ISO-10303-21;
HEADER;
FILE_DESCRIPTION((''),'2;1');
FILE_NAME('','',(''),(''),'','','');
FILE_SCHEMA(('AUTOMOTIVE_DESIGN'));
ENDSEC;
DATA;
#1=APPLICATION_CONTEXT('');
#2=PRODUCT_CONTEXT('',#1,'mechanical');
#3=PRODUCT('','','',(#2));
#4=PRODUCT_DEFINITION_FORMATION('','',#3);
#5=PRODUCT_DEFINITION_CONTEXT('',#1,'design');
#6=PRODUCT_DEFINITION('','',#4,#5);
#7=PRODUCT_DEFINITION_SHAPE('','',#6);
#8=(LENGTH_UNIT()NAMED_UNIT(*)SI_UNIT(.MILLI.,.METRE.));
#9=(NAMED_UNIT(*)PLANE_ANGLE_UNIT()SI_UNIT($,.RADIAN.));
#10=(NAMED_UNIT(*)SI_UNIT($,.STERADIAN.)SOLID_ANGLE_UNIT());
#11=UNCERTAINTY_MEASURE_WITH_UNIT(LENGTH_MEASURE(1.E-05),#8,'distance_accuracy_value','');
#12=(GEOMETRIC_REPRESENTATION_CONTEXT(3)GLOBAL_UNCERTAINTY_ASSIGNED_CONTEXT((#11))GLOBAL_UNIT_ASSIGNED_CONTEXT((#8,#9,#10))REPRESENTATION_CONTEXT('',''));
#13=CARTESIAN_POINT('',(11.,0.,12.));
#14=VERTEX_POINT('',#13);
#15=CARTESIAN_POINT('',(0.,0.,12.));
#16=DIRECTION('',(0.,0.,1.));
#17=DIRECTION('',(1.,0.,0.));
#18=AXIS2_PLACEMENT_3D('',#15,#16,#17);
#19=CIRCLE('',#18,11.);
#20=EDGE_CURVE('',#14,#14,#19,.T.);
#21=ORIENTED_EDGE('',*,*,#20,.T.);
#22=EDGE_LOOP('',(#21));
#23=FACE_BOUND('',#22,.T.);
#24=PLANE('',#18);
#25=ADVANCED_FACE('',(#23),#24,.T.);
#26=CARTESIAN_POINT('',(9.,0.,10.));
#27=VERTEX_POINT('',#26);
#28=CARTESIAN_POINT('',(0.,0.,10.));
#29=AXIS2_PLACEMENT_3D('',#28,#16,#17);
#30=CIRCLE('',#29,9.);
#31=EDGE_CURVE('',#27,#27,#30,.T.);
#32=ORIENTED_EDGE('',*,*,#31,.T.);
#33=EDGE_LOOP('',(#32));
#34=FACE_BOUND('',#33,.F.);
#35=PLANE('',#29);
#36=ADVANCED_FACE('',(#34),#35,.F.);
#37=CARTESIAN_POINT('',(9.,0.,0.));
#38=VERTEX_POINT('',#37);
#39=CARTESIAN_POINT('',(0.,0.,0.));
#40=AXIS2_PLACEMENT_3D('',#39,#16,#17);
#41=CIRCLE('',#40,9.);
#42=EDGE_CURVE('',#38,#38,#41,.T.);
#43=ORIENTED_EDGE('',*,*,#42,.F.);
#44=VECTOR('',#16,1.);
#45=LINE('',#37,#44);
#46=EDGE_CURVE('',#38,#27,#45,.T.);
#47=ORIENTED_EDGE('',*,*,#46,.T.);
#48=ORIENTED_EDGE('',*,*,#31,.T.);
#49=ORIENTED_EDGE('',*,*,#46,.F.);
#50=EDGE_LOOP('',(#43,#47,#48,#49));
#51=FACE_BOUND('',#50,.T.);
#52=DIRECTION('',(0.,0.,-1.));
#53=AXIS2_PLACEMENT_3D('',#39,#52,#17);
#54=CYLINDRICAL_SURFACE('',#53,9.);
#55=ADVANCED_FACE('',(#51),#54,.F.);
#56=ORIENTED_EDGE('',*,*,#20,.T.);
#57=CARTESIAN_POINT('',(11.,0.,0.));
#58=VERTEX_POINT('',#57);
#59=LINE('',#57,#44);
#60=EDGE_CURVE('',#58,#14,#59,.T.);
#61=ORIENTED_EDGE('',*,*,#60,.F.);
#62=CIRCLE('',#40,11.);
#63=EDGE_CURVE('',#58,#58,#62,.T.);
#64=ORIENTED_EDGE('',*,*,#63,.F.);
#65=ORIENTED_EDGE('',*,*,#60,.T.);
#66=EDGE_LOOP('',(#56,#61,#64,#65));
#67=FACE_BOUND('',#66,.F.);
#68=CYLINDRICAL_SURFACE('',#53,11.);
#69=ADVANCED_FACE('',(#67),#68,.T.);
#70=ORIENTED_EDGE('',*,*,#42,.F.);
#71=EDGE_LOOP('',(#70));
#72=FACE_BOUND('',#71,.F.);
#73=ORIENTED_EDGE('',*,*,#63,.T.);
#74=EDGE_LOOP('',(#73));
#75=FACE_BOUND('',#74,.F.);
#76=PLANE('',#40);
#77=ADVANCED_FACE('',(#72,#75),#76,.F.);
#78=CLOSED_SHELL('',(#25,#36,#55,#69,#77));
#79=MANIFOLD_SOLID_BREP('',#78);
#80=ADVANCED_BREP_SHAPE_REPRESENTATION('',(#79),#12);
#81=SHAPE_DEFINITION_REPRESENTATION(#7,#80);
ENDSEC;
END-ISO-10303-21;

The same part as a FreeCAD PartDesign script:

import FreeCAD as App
import Part
import Sketcher
from FreeCAD import Vector

doc = App.newDocument("Part")
body = doc.addObject("PartDesign::Body", "Body")

sketch1 = body.newObject("Sketcher::SketchObject", "Sketch")
sketch1.AttachmentSupport = (doc.getObject("XY_Plane"), [""])
sketch1.MapMode = "FlatFace"
sketch1.addGeometry(Part.Circle(Vector(0, 0, 0), Vector(0, 0, 1), 9), False)
sketch1.addConstraint([
    Sketcher.Constraint("Coincident", 0, 3, -1, 1),
    Sketcher.Constraint("Diameter", 0, 18.0),
])
pad1 = body.newObject("PartDesign::Pad", "Pad")
pad1.Profile = sketch1
pad1.Length = 10
body2 = doc.addObject("PartDesign::Body", "Body001")

sketch2 = body2.newObject("Sketcher::SketchObject", "Sketch001")
sketch2.AttachmentSupport = (doc.getObject("XY_Plane001"), [""])
sketch2.MapMode = "FlatFace"
sketch2.addGeometry(Part.Circle(Vector(0, 0, 0), Vector(0, 0, 1), 11), False)
sketch2.addConstraint([
    Sketcher.Constraint("Coincident", 0, 3, -1, 1),
    Sketcher.Constraint("Diameter", 0, 22.0),
])
pad2 = body2.newObject("PartDesign::Pad", "Pad001")
pad2.Profile = sketch2
pad2.Length = 12
doc.recompute()

boolean = body2.newObject("PartDesign::Boolean", "Boolean")
boolean.Type = "Cut"
boolean.addObjects([body])

doc.recompute()
